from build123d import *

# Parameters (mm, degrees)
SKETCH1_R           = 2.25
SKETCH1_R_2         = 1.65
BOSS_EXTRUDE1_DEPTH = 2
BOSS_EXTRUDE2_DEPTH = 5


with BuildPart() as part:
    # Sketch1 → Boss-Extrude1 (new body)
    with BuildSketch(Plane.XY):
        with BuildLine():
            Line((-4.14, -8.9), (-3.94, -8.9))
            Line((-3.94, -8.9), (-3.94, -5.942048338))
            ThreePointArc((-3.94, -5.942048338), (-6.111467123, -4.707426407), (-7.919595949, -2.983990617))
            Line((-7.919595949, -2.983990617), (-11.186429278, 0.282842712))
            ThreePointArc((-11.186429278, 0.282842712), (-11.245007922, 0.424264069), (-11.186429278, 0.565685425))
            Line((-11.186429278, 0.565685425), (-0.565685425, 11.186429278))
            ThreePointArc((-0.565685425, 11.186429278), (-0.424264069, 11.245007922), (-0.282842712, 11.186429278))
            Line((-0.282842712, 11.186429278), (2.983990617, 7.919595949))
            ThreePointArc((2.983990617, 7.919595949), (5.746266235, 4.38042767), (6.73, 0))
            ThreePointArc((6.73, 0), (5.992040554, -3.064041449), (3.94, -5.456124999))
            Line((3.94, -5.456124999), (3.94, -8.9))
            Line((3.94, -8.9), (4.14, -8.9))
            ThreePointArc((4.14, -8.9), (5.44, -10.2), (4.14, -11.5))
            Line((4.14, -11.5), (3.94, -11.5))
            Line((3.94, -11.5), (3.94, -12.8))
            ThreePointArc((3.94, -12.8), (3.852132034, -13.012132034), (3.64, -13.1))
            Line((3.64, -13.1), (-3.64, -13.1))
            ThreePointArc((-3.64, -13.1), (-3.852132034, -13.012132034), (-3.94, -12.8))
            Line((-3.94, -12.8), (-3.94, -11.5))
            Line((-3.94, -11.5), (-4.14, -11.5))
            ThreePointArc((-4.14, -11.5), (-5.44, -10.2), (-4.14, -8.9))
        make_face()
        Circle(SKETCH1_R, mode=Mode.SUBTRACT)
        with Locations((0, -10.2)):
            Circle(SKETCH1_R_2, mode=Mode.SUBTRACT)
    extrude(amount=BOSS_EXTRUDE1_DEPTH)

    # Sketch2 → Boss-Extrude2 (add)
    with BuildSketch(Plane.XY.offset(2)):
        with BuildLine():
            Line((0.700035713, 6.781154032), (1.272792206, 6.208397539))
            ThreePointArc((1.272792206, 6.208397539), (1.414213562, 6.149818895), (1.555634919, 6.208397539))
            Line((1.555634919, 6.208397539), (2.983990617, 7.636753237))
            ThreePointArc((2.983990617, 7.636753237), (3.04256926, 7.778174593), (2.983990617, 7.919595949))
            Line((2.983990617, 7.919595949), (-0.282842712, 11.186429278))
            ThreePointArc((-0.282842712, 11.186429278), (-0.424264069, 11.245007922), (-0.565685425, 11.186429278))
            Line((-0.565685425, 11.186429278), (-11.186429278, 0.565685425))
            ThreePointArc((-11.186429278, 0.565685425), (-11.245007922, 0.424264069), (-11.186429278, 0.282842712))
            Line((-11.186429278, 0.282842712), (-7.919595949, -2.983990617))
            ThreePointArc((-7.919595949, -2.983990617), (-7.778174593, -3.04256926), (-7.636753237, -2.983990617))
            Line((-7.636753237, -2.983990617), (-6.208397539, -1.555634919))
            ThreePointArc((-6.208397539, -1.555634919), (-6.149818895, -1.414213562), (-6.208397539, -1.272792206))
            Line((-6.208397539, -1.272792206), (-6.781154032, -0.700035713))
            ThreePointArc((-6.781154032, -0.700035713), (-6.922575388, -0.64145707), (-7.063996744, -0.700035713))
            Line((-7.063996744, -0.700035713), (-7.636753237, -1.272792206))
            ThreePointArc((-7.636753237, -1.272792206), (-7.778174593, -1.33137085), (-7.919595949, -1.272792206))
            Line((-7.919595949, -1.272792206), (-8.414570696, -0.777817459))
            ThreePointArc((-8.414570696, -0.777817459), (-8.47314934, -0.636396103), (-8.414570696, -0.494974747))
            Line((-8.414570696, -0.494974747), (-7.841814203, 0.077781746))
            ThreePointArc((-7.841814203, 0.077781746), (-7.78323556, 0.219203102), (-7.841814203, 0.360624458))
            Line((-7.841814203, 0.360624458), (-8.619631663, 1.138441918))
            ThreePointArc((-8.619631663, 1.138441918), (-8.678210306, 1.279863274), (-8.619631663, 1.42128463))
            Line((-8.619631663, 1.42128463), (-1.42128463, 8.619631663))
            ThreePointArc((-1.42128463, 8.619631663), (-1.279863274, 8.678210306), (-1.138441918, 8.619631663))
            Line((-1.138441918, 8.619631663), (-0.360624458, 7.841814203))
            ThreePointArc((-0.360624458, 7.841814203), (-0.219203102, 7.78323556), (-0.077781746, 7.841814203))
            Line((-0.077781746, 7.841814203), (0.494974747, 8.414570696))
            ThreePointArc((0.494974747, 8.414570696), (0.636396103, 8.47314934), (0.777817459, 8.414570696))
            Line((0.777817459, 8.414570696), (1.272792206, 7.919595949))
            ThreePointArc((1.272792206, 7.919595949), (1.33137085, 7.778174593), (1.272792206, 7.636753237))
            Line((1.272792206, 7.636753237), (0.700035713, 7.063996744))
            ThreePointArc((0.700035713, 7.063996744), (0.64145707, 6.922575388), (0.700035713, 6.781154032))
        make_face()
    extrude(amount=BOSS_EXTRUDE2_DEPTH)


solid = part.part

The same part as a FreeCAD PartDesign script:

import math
import FreeCAD as App
import Part
import Sketcher
from FreeCAD import Vector

doc = App.newDocument("Part")
body = doc.addObject("PartDesign::Body", "Body")

# Sketch on XY plane
sketch1 = doc.addObject("Sketcher::SketchObject", "Sketch")
body.addObject(sketch1)
sketch1.AttachmentSupport = (doc.XY_Plane, [""])
sketch1.MapMode = "FlatFace"
sketch1.addGeometry([
    Part.LineSegment(Vector(-3.94, -8.9, 0), Vector(-4.14, -8.9, 0)),  # 0
    Part.ArcOfCircle(Part.Circle(Vector(-4.14, -10.2, 0), Vector(0, 0, 1), 1.3), math.radians(90), math.radians(270)),  # 1
    Part.LineSegment(Vector(-4.14, -11.5, 0), Vector(-3.94, -11.5, 0)),  # 2
    Part.LineSegment(Vector(-3.94, -11.5, 0), Vector(-3.94, -12.8, 0)),  # 3
    Part.ArcOfCircle(Part.Circle(Vector(-3.64, -12.8, 0), Vector(0, 0, 1), 0.3), math.radians(-180), math.radians(-90)),  # 4
    Part.LineSegment(Vector(-3.64, -13.1, 0), Vector(3.64, -13.1, 0)),  # 5
    Part.ArcOfCircle(Part.Circle(Vector(3.64, -12.8, 0), Vector(0, 0, 1), 0.3), math.radians(-90), math.radians(0)),  # 6
    Part.LineSegment(Vector(3.94, -12.8, 0), Vector(3.94, -11.5, 0)),  # 7
    Part.LineSegment(Vector(3.94, -11.5, 0), Vector(4.14, -11.5, 0)),  # 8
    Part.ArcOfCircle(Part.Circle(Vector(4.14, -10.2, 0), Vector(0, 0, 1), 1.3), math.radians(-90), math.radians(90)),  # 9
    Part.LineSegment(Vector(4.14, -8.9, 0), Vector(3.94, -8.9, 0)),  # 10
    Part.LineSegment(Vector(3.94, -8.9, 0), Vector(3.94, -5.46, 0)),  # 11
    Part.ArcOfCircle(Part.Circle(Vector(0, 0, 0), Vector(0, 0, 1), 6.73), math.radians(-54), math.radians(0)),  # 12
    Part.ArcOfCircle(Part.Circle(Vector(-3.51, 0, 0), Vector(0, 0, 1), 10.24), math.radians(0), math.radians(51)),  # 13
    Part.LineSegment(Vector(2.98, 7.92, 0), Vector(-0.28, 11.19, 0)),  # 14
    Part.ArcOfCircle(Part.Circle(Vector(-0.42, 11.05, 0), Vector(0, 0, 1), 0.2), math.radians(45), math.radians(135)),  # 15
    Part.LineSegment(Vector(-0.57, 11.19, 0), Vector(-11.19, 0.57, 0)),  # 16
    Part.ArcOfCircle(Part.Circle(Vector(-11.05, 0.42, 0), Vector(0, 0, 1), 0.2), math.radians(135), math.radians(225)),  # 17
    Part.LineSegment(Vector(-11.19, 0.28, 0), Vector(-7.92, -2.98, 0)),  # 18
    Part.ArcOfCircle(Part.Circle(Vector(0, 3.51, 0), Vector(0, 0, 1), 10.24), math.radians(-141), math.radians(-113)),  # 19
    Part.LineSegment(Vector(-3.94, -5.94, 0), Vector(-3.94, -8.9, 0)),  # 20
    Part.Circle(Vector(0, -10.2, 0), Vector(0, 0, 1), 1.65),  # 21
    Part.Circle(Vector(0, 0, 0), Vector(0, 0, 1), 2.25),  # 22
], False)
sketch1.addConstraint([
    Sketcher.Constraint("Tangent", 0, 2, 1, 1),
    Sketcher.Constraint("Tangent", 1, 2, 2, 1),
    Sketcher.Constraint("Coincident", 2, 2, 3, 1),
    Sketcher.Constraint("Tangent", 3, 2, 4, 1),
    Sketcher.Constraint("Tangent", 4, 2, 5, 1),
    Sketcher.Constraint("Tangent", 5, 2, 6, 1),
    Sketcher.Constraint("Tangent", 6, 2, 7, 1),
    Sketcher.Constraint("Coincident", 7, 2, 8, 1),
    Sketcher.Constraint("Tangent", 8, 2, 9, 1),
    Sketcher.Constraint("Tangent", 9, 2, 10, 1),
    Sketcher.Constraint("Coincident", 10, 2, 11, 1),
    Sketcher.Constraint("Coincident", 11, 2, 12, 1),
    Sketcher.Constraint("Tangent", 12, 2, 13, 1),
    Sketcher.Constraint("Coincident", 13, 2, 14, 1),
    Sketcher.Constraint("Tangent", 14, 2, 15, 1),
    Sketcher.Constraint("Tangent", 15, 2, 16, 1),
    Sketcher.Constraint("Tangent", 16, 2, 17, 1),
    Sketcher.Constraint("Tangent", 17, 2, 18, 1),
    Sketcher.Constraint("Coincident", 18, 2, 19, 1),
    Sketcher.Constraint("Coincident", 19, 2, 20, 1),
    Sketcher.Constraint("Coincident", 20, 2, 0, 1),
    Sketcher.Constraint("Horizontal", 0),
    Sketcher.Constraint("Horizontal", 2),
    Sketcher.Constraint("Vertical", 3),
    Sketcher.Constraint("Horizontal", 5),
    Sketcher.Constraint("Vertical", 7),
    Sketcher.Constraint("Horizontal", 8),
    Sketcher.Constraint("Horizontal", 10),
    Sketcher.Constraint("Vertical", 11),
    Sketcher.Constraint("Vertical", 20),
    Sketcher.Constraint("Coincident", 12, 3, -1, 1),
    Sketcher.Constraint("Coincident", 22, 3, -1, 1),
    Sketcher.Constraint("Equal", 4, 6),
    Sketcher.Constraint("Equal", 1, 9),
    Sketcher.Constraint("Equal", 15, 17),
    Sketcher.Constraint("Equal", 13, 19),
    Sketcher.Constraint("Symmetric", 1, 3, 9, 3, -2),
    Sketcher.Constraint("PointOnObject", 13, 3, -1),
    Sketcher.Constraint("PointOnObject", 19, 3, -2),
    Sketcher.Constraint("PointOnObject", 21, 3, -2),
    Sketcher.Constraint("Perpendicular", 14, 16),
    Sketcher.Constraint("Perpendicular", 16, 18),
    Sketcher.Constraint("Horizontal", 9, 3, 21, 3),
    Sketcher.Constraint("Horizontal", 14, 2, 15, 2),
    Sketcher.Constraint("Vertical", 7, 2, 10, 2),
    Sketcher.Constraint("Vertical", 3, 2, 19, 2),
    Sketcher.Constraint("Equal", 2, 8),
    Sketcher.Constraint("Equal", 14, 18),
    Sketcher.Constraint("Diameter", 21, 3.3),
    Sketcher.Constraint("Diameter", 22, 4.5),
    Sketcher.Constraint("Radius", 1, 1.3),
    Sketcher.Constraint("Radius", 4, 0.3),
    Sketcher.Constraint("Radius", 15, 0.2),
    Sketcher.Constraint("Radius", 12, 6.73),
    Sketcher.Constraint("DistanceX", 0, 2, 0, 1, 0.2),
    Sketcher.Constraint("DistanceY", 3, 2, 3, 1, 1.3),
    Sketcher.Constraint("DistanceX", 5, 1, 5, 2, 7.28),
    Sketcher.Constraint("DistanceY", 1, 3, -1, 1, 10.2),
    Sketcher.Constraint("Distance", 14, 4.62),
    Sketcher.Constraint("Distance", 16, 15.02),
    Sketcher.Constraint("Radius", 13, 10.24458),
    Sketcher.Constraint("DistanceY", 20, 2, 20, 1, 2.957952),
])
pad1 = doc.addObject("PartDesign::Pad", "Pad")
body.addObject(pad1)
pad1.Profile = sketch1
pad1.Length = 2

# Sketch on XY plane
sketch2 = doc.addObject("Sketcher::SketchObject", "Sketch001")
body.addObject(sketch2)
sketch2.AttachmentSupport = (doc.XY_Plane, [""])
sketch2.MapMode = "FlatFace"
sketch2.AttachmentOffset = App.Placement(Vector(0, 0, 2), App.Rotation())
sketch2.addGeometry([
    Part.LineSegment(Vector(0.7, 6.78, 0), Vector(1.27, 6.21, 0)),  # 0
    Part.ArcOfCircle(Part.Circle(Vector(1.41, 6.35, 0), Vector(0, 0, 1), 0.2), math.radians(-135), math.radians(-45)),  # 1
    Part.LineSegment(Vector(1.56, 6.21, 0), Vector(2.98, 7.64, 0)),  # 2
    Part.ArcOfCircle(Part.Circle(Vector(2.84, 7.78, 0), Vector(0, 0, 1), 0.2), math.radians(-45), math.radians(45)),  # 3
    Part.LineSegment(Vector(2.98, 7.92, 0), Vector(-0.28, 11.19, 0)),  # 4
    Part.ArcOfCircle(Part.Circle(Vector(-0.42, 11.05, 0), Vector(0, 0, 1), 0.2), math.radians(45), math.radians(135)),  # 5
    Part.LineSegment(Vector(-0.57, 11.19, 0), Vector(-11.19, 0.57, 0)),  # 6
    Part.ArcOfCircle(Part.Circle(Vector(-11.05, 0.42, 0), Vector(0, 0, 1), 0.2), math.radians(135), math.radians(225)),  # 7
    Part.LineSegment(Vector(-11.19, 0.28, 0), Vector(-7.92, -2.98, 0)),  # 8
    Part.ArcOfCircle(Part.Circle(Vector(-7.78, -2.84, 0), Vector(0, 0, 1), 0.2), math.radians(-135), math.radians(-45)),  # 9
    Part.LineSegment(Vector(-7.64, -2.98, 0), Vector(-6.21, -1.56, 0)),  # 10
    Part.ArcOfCircle(Part.Circle(Vector(-6.35, -1.41, 0), Vector(0, 0, 1), 0.2), math.radians(-45), math.radians(45)),  # 11
    Part.LineSegment(Vector(-6.21, -1.27, 0), Vector(-6.78, -0.7, 0)),  # 12
    Part.ArcOfCircle(Part.Circle(Vector(-6.92, -0.84, 0), Vector(0, 0, 1), 0.2), math.radians(45), math.radians(135)),  # 13
    Part.LineSegment(Vector(-7.06, -0.7, 0), Vector(-7.64, -1.27, 0)),  # 14
    Part.ArcOfCircle(Part.Circle(Vector(-7.78, -1.13, 0), Vector(0, 0, 1), 0.2), math.radians(-135), math.radians(-45)),  # 15
    Part.LineSegment(Vector(-7.92, -1.27, 0), Vector(-8.41, -0.78, 0)),  # 16
    Part.ArcOfCircle(Part.Circle(Vector(-8.27, -0.64, 0), Vector(0, 0, 1), 0.2), math.radians(135), math.radians(225)),  # 17
    Part.LineSegment(Vector(-8.41, -0.49, 0), Vector(-7.84, 0.08, 0)),  # 18
    Part.ArcOfCircle(Part.Circle(Vector(-7.98, 0.22, 0), Vector(0, 0, 1), 0.2), math.radians(-45), math.radians(45)),  # 19
    Part.LineSegment(Vector(-7.84, 0.36, 0), Vector(-8.62, 1.14, 0)),  # 20
    Part.ArcOfCircle(Part.Circle(Vector(-8.48, 1.28, 0), Vector(0, 0, 1), 0.2), math.radians(135), math.radians(225)),  # 21
    Part.LineSegment(Vector(-8.62, 1.42, 0), Vector(-1.42, 8.62, 0)),  # 22
    Part.ArcOfCircle(Part.Circle(Vector(-1.28, 8.48, 0), Vector(0, 0, 1), 0.2), math.radians(45), math.radians(135)),  # 23
    Part.LineSegment(Vector(-1.14, 8.62, 0), Vector(-0.36, 7.84, 0)),  # 24
    Part.ArcOfCircle(Part.Circle(Vector(-0.22, 7.98, 0), Vector(0, 0, 1), 0.2), math.radians(-135), math.radians(-45)),  # 25
    Part.LineSegment(Vector(-0.08, 7.84, 0), Vector(0.49, 8.41, 0)),  # 26
    Part.ArcOfCircle(Part.Circle(Vector(0.64, 8.27, 0), Vector(0, 0, 1), 0.2), math.radians(45), math.radians(135)),  # 27
    Part.LineSegment(Vector(0.78, 8.41, 0), Vector(1.27, 7.92, 0)),  # 28
    Part.ArcOfCircle(Part.Circle(Vector(1.13, 7.78, 0), Vector(0, 0, 1), 0.2), math.radians(-45), math.radians(45)),  # 29
    Part.LineSegment(Vector(1.27, 7.64, 0), Vector(0.7, 7.06, 0)),  # 30
    Part.ArcOfCircle(Part.Circle(Vector(0.84, 6.92, 0), Vector(0, 0, 1), 0.2), math.radians(135), math.radians(225)),  # 31
], False)
sketch2.addConstraint([
    Sketcher.Constraint("Tangent", 0, 2, 1, 1),
    Sketcher.Constraint("Tangent", 1, 2, 2, 1),
    Sketcher.Constraint("Tangent", 2, 2, 3, 1),
    Sketcher.Constraint("Tangent", 3, 2, 4, 1),
    Sketcher.Constraint("Tangent", 4, 2, 5, 1),
    Sketcher.Constraint("Tangent", 5, 2, 6, 1),
    Sketcher.Constraint("Tangent", 6, 2, 7, 1),
    Sketcher.Constraint("Tangent", 7, 2, 8, 1),
    Sketcher.Constraint("Tangent", 8, 2, 9, 1),
    Sketcher.Constraint("Tangent", 9, 2, 10, 1),
    Sketcher.Constraint("Tangent", 10, 2, 11, 1),
    Sketcher.Constraint("Tangent", 11, 2, 12, 1),
    Sketcher.Constraint("Tangent", 12, 2, 13, 1),
    Sketcher.Constraint("Tangent", 13, 2, 14, 1),
    Sketcher.Constraint("Tangent", 14, 2, 15, 2),
    Sketcher.Constraint("Tangent", 15, 1, 16, 1),
    Sketcher.Constraint("Tangent", 16, 2, 17, 2),
    Sketcher.Constraint("Tangent", 17, 1, 18, 1),
    Sketcher.Constraint("Tangent", 18, 2, 19, 1),
    Sketcher.Constraint("Tangent", 19, 2, 20, 1),
    Sketcher.Constraint("Tangent", 20, 2, 21, 2),
    Sketcher.Constraint("Tangent", 21, 1, 22, 1),
    Sketcher.Constraint("Tangent", 22, 2, 23, 2),
    Sketcher.Constraint("Tangent", 23, 1, 24, 1),
    Sketcher.Constraint("Tangent", 24, 2, 25, 1),
    Sketcher.Constraint("Tangent", 25, 2, 26, 1),
    Sketcher.Constraint("Tangent", 26, 2, 27, 2),
    Sketcher.Constraint("Tangent", 27, 1, 28, 1),
    Sketcher.Constraint("Tangent", 28, 2, 29, 2),
    Sketcher.Constraint("Tangent", 29, 1, 30, 1),
    Sketcher.Constraint("Tangent", 30, 2, 31, 1),
    Sketcher.Constraint("Tangent", 31, 2, 0, 1),
    Sketcher.Constraint("Equal", 1, 3),
    Sketcher.Constraint("Equal", 3, 5),
    Sketcher.Constraint("Equal", 5, 7),
    Sketcher.Constraint("Equal", 7, 9),
    Sketcher.Constraint("Equal", 9, 11),
    Sketcher.Constraint("Equal", 11, 13),
    Sketcher.Constraint("Equal", 13, 15),
    Sketcher.Constraint("Equal", 15, 17),
    Sketcher.Constraint("Equal", 17, 19),
    Sketcher.Constraint("Equal", 19, 21),
    Sketcher.Constraint("Equal", 21, 23),
    Sketcher.Constraint("Equal", 23, 25),
    Sketcher.Constraint("Equal", 25, 27),
    Sketcher.Constraint("Equal", 27, 29),
    Sketcher.Constraint("Equal", 29, 31),
    Sketcher.Constraint("Perpendicular", 0, 2),
    Sketcher.Constraint("Perpendicular", 2, 4),
    Sketcher.Constraint("Perpendicular", 4, 6),
    Sketcher.Constraint("Perpendicular", 6, 8),
    Sketcher.Constraint("Perpendicular", 8, 10),
    Sketcher.Constraint("Perpendicular", 10, 12),
    Sketcher.Constraint("Perpendicular", 12, 14),
    Sketcher.Constraint("Perpendicular", 14, 16),
    Sketcher.Constraint("Perpendicular", 16, 18),
    Sketcher.Constraint("Perpendicular", 18, 20),
    Sketcher.Constraint("Perpendicular", 20, 22),
    Sketcher.Constraint("Perpendicular", 22, 24),
    Sketcher.Constraint("Perpendicular", 24, 26),
    Sketcher.Constraint("Perpendicular", 26, 28),
    Sketcher.Constraint("Perpendicular", 28, 30),
    Sketcher.Constraint("Horizontal", 3, 3, 29, 3),
    Sketcher.Constraint("Horizontal", 0, 2, 1, 2),
    Sketcher.Constraint("Horizontal", 11, 2, 14, 2),
    Sketcher.Constraint("Vertical", 9, 3, 15, 3),
    Sketcher.Constraint("Vertical", 0, 2, 28, 2),
    Sketcher.Constraint("Equal", 4, 8),
    Sketcher.Constraint("Equal", 2, 10),
    Sketcher.Constraint("Equal", 14, 18),
    Sketcher.Constraint("Equal", 20, 24),
    Sketcher.Constraint("Equal", 18, 26),
    Sketcher.Constraint("Radius", 1, 0.2),
    Sketcher.Constraint("Distance", 16, 0.7),
    Sketcher.Constraint("Distance", 20, 1.1),
    Sketcher.Constraint("Distance", 0, 0.81),
    Sketcher.Constraint("Distance", 4, 4.62),
    Sketcher.Constraint("Distance", 6, 15.02),
    Sketcher.Constraint("DistanceY", -1, 1, 1, 3, 6.349819),
    Sketcher.Constraint("DistanceX", -1, 1, 3, 3, 2.842569),
])
pad2 = doc.addObject("PartDesign::Pad", "Pad001")
body.addObject(pad2)
pad2.Profile = sketch2
pad2.Length = 5

doc.recompute()
